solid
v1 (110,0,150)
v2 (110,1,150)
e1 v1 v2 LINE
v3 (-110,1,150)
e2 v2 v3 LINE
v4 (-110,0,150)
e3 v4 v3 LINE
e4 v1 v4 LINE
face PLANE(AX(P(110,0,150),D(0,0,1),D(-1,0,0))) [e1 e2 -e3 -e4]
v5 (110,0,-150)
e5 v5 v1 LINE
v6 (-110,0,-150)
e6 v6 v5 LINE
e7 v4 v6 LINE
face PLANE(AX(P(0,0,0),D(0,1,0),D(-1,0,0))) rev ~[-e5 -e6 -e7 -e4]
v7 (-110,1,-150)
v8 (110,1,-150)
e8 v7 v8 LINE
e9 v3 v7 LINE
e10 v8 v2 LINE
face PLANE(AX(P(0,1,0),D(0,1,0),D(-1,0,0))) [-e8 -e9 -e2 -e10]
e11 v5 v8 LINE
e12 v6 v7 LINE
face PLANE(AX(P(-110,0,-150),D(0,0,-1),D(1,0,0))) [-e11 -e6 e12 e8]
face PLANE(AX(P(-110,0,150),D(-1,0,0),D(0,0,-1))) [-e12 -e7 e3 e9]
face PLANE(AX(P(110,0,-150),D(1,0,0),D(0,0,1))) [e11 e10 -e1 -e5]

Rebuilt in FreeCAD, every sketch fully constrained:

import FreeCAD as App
import Part
import Sketcher

V = App.Vector


def add_polygon(sketch, points):
    """Adds a closed chain of lines whose ends are joined by coincident constraints."""
    first, n = sketch.GeometryCount, len(points)
    for a, b in zip(points, points[1:] + points[:1]):
        sketch.addGeometry(Part.LineSegment(App.Vector(*a, 0), App.Vector(*b, 0)), False)
    for i in range(n):
        sketch.addConstraint(Sketcher.Constraint("Coincident", first + i, 2, first + (i + 1) % n, 1))

doc = App.newDocument("Part")
params = doc.addObject("Spreadsheet::Sheet", "Params")
for row, (alias, value) in enumerate([
    ("sketch1_width", "220 mm"),
    ("sketch1_height", "300 mm"),
    ("pad1_length", "1 mm"),
], start=1):
    params.set(f"A{row}", alias)
    params.set(f"B{row}", "=" + value)
    params.setAlias(f"B{row}", alias)

body = doc.addObject("PartDesign::Body", "Body")

# Sketch on XZ plane
sketch1 = doc.addObject("Sketcher::SketchObject", "Sketch")
body.addObject(sketch1)
sketch1.AttachmentSupport = (doc.XZ_Plane, [""])
sketch1.MapMode = "FlatFace"
add_polygon(sketch1, [(-110, 150), (110, 150), (110, -150), (-110, -150)])  # lines 0-3
sketch1.addConstraint([
    Sketcher.Constraint("Horizontal", 0),
    Sketcher.Constraint("Vertical", 1),
    Sketcher.Constraint("Horizontal", 2),
    Sketcher.Constraint("Vertical", 3),
    Sketcher.Constraint("Symmetric", 0, 2, 2, 2, -1, 1),
    Sketcher.Constraint("DistanceX", 0, 1, 0, 2, 220.0),
    Sketcher.Constraint("DistanceY", 1, 2, 1, 1, 300.0),
])
sketch1.setExpression("Constraints[9]", "Params.sketch1_width")
sketch1.setExpression("Constraints[10]", "Params.sketch1_height")
pad1 = doc.addObject("PartDesign::Pad", "Pad")
body.addObject(pad1)
pad1.Profile = sketch1
pad1.setExpression("Length", "Params.pad1_length")
pad1.Reversed = True

doc.recompute()
